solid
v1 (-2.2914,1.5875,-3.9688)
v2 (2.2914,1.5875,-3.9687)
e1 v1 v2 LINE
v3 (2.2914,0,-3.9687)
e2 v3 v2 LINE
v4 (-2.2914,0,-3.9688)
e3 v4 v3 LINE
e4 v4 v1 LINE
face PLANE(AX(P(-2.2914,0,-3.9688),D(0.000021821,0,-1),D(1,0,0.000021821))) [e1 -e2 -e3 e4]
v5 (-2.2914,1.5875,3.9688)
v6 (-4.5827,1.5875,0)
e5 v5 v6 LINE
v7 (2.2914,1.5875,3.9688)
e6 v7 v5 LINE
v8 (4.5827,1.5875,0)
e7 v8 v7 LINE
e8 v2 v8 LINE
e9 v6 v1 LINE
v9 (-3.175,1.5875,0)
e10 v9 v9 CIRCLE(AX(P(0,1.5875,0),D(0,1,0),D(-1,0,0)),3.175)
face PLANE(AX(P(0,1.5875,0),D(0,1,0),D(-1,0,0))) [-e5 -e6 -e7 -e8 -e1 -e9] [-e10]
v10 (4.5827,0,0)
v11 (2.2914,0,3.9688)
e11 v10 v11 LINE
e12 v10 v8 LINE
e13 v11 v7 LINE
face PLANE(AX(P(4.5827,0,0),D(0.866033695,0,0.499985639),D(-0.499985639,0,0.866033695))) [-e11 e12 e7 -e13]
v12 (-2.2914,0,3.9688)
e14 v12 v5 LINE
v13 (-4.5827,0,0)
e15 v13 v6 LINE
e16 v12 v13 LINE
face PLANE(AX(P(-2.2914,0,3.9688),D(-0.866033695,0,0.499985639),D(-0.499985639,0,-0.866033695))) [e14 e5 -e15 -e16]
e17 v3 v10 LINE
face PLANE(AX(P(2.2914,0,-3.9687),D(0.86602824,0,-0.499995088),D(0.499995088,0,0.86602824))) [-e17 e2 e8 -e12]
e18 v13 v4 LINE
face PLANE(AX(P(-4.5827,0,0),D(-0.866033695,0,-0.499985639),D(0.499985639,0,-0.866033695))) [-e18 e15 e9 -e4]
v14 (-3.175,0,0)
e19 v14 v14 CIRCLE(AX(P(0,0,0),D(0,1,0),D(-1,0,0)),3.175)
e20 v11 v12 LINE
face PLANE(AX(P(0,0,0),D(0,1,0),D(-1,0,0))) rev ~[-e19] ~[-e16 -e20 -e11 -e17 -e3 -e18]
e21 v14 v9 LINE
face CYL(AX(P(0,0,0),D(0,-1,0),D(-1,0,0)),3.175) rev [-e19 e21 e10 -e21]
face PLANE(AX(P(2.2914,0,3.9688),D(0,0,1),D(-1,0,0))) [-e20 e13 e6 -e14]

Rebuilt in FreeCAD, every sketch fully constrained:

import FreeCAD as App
import Part
import Sketcher
Q = App.Units.Quantity


def add_polygon(sketch, points):
    """Adds a closed chain of lines whose ends are joined by coincident constraints."""
    first, n = sketch.GeometryCount, len(points)
    for a, b in zip(points, points[1:] + points[:1]):
        sketch.addGeometry(Part.LineSegment(App.Vector(*a, 0), App.Vector(*b, 0)), False)
    for i in range(n):
        sketch.addConstraint(Sketcher.Constraint("Coincident", first + i, 2, first + (i + 1) % n, 1))

doc = App.newDocument("Part")
body = doc.addObject("PartDesign::Body", "Body")

# Sketch on XZ plane
sketch1 = body.newObject("Sketcher::SketchObject", "Sketch")
sketch1.AttachmentSupport = (doc.getObject("XZ_Plane"), [""])
sketch1.MapMode = "FlatFace"
add_polygon(sketch1, [(-2.3, -4), (-4.6, 0), (-2.3, 4), (2.3, 4), (4.6, 0), (2.3, -4)])  # lines 0-5
sketch1.addGeometry(Part.Circle(App.Vector(0, 0, 0), App.Vector(0, 0, 1), 3.2), False)  # 6
sketch1.addConstraint([
    Sketcher.Constraint("Horizontal", 2),
    Sketcher.Constraint("Horizontal", 5),
    Sketcher.Constraint("Coincident", 6, 3, -1, 1),
    Sketcher.Constraint("Symmetric", 0, 2, 3, 2, -1, 1),
    Sketcher.Constraint("Symmetric", 1, 2, 4, 2, -1, 1),
    Sketcher.Constraint("PointOnObject", 0, 2, -1),
    Sketcher.Constraint("Parallel", 0, 3),
    Sketcher.Constraint("Vertical", 2, 2, 4, 2),
    Sketcher.Constraint("Diameter", 6, Q("0.25 in")),
    Sketcher.Constraint("Angle", 0, Q("119.999 deg")),
    Sketcher.Constraint("DistanceY", 4, 2, 2, 2, Q("0.3125 in")),
    Sketcher.Constraint("DistanceX", 2, 1, 2, 2, Q("4.5828 mm")),
])
pad1 = body.newObject("PartDesign::Pad", "Pad")
pad1.Profile = sketch1
pad1.Length = Q("0.0625 in")
pad1.Reversed = True

doc.recompute()
